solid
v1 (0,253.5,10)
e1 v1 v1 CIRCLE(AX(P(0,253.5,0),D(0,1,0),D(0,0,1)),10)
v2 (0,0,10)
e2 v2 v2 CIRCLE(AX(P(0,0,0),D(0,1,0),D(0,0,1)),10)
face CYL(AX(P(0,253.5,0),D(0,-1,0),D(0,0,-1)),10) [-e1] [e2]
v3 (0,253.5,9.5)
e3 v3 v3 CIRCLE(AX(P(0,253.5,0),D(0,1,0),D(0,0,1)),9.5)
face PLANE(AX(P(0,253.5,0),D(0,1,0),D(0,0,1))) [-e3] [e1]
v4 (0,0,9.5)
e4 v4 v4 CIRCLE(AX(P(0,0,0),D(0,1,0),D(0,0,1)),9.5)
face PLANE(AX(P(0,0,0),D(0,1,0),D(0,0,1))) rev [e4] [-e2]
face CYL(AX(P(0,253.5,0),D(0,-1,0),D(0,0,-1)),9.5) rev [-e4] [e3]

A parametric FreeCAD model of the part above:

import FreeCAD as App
import Part
import Sketcher
Q = App.Units.Quantity

doc = App.newDocument("Part")
body = doc.addObject("PartDesign::Body", "Body")

# Sketch on XZ plane
sketch1 = body.newObject("Sketcher::SketchObject", "Sketch")
sketch1.AttachmentSupport = (doc.getObject("XZ_Plane"), [""])
sketch1.MapMode = "FlatFace"
sketch1.addGeometry([
    Part.Circle(App.Vector(0, 0, 0), App.Vector(0, 0, 1), 10),
    Part.Circle(App.Vector(0, 0, 0), App.Vector(0, 0, 1), 10),
], False)
sketch1.addConstraint([
    Sketcher.Constraint("Coincident", 0, 3, -1, 1),
    Sketcher.Constraint("Coincident", 1, 3, -1, 1),
    Sketcher.Constraint("Diameter", 0, Q("20 mm")),
    Sketcher.Constraint("Diameter", 1, Q("19 mm")),
])
pad1 = body.newObject("PartDesign::Pad", "Pad")
pad1.Profile = sketch1
pad1.Length = 253.5
pad1.Reversed = True

doc.recompute()
